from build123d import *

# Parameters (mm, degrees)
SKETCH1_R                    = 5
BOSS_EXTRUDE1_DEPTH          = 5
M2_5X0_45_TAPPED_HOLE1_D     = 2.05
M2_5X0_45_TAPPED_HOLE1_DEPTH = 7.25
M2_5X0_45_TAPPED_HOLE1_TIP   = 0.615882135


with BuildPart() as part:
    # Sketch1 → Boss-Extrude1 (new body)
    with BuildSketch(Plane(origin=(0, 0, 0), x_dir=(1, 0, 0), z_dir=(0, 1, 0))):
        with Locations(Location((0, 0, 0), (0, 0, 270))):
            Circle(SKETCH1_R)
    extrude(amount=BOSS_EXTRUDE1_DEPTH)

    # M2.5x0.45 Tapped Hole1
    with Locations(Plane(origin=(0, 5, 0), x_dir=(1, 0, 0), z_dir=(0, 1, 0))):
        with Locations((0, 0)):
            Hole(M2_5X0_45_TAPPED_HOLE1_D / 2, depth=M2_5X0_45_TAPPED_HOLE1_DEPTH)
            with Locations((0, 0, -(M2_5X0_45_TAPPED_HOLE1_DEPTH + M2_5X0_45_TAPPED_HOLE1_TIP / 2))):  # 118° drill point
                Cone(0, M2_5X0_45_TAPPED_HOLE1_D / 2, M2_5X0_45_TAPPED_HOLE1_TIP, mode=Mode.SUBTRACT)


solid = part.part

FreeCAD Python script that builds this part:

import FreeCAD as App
import Part
import Sketcher
from FreeCAD import Vector
Q = App.Units.Quantity

doc = App.newDocument("Part")
body = doc.addObject("PartDesign::Body", "Body")

# Sketch on XZ plane
sketch1 = body.newObject("Sketcher::SketchObject", "Sketch")
sketch1.AttachmentSupport = (doc.getObject("XZ_Plane"), [""])
sketch1.MapMode = "FlatFace"
sketch1.addGeometry(Part.Circle(Vector(0, 0, 0), Vector(0, 0, 1), 5), False)
sketch1.addConstraint(Sketcher.Constraint("Coincident", 0, 3, -1, 1))
sketch1.addConstraint(Sketcher.Constraint("Diameter", 0, Q("10 mm")))
pad1 = body.newObject("PartDesign::Pad", "Pad")
pad1.Profile = sketch1
pad1.Length = 5
pad1.Reversed = True

# Sketch on XZ plane
sketch2 = body.newObject("Sketcher::SketchObject", "Sketch001")
sketch2.AttachmentSupport = (doc.getObject("XZ_Plane"), [""])
sketch2.MapMode = "FlatFace"
sketch2.AttachmentOffset = App.Placement(Vector(0, 0, -5), App.Rotation())
sketch2.addGeometry(Part.Circle(Vector(0, 0, 0), Vector(0, 0, 1), 1.025), False)
sketch2.addConstraint(Sketcher.Constraint("Coincident", 0, 3, -1, 1))
sketch2.addConstraint(Sketcher.Constraint("Diameter", 0, Q("2.05 mm")))
doc.recompute()
hole = body.newObject("PartDesign::Hole", "Hole")
hole.Profile = sketch2
hole.ThreadType = "None"
hole.Diameter = 2.05
hole.DepthType = "Dimension"
hole.Depth = 7.25
hole.DrillPoint = "Angled"
hole.DrillPointAngle = 118
hole.Reversed = True

doc.recompute()
